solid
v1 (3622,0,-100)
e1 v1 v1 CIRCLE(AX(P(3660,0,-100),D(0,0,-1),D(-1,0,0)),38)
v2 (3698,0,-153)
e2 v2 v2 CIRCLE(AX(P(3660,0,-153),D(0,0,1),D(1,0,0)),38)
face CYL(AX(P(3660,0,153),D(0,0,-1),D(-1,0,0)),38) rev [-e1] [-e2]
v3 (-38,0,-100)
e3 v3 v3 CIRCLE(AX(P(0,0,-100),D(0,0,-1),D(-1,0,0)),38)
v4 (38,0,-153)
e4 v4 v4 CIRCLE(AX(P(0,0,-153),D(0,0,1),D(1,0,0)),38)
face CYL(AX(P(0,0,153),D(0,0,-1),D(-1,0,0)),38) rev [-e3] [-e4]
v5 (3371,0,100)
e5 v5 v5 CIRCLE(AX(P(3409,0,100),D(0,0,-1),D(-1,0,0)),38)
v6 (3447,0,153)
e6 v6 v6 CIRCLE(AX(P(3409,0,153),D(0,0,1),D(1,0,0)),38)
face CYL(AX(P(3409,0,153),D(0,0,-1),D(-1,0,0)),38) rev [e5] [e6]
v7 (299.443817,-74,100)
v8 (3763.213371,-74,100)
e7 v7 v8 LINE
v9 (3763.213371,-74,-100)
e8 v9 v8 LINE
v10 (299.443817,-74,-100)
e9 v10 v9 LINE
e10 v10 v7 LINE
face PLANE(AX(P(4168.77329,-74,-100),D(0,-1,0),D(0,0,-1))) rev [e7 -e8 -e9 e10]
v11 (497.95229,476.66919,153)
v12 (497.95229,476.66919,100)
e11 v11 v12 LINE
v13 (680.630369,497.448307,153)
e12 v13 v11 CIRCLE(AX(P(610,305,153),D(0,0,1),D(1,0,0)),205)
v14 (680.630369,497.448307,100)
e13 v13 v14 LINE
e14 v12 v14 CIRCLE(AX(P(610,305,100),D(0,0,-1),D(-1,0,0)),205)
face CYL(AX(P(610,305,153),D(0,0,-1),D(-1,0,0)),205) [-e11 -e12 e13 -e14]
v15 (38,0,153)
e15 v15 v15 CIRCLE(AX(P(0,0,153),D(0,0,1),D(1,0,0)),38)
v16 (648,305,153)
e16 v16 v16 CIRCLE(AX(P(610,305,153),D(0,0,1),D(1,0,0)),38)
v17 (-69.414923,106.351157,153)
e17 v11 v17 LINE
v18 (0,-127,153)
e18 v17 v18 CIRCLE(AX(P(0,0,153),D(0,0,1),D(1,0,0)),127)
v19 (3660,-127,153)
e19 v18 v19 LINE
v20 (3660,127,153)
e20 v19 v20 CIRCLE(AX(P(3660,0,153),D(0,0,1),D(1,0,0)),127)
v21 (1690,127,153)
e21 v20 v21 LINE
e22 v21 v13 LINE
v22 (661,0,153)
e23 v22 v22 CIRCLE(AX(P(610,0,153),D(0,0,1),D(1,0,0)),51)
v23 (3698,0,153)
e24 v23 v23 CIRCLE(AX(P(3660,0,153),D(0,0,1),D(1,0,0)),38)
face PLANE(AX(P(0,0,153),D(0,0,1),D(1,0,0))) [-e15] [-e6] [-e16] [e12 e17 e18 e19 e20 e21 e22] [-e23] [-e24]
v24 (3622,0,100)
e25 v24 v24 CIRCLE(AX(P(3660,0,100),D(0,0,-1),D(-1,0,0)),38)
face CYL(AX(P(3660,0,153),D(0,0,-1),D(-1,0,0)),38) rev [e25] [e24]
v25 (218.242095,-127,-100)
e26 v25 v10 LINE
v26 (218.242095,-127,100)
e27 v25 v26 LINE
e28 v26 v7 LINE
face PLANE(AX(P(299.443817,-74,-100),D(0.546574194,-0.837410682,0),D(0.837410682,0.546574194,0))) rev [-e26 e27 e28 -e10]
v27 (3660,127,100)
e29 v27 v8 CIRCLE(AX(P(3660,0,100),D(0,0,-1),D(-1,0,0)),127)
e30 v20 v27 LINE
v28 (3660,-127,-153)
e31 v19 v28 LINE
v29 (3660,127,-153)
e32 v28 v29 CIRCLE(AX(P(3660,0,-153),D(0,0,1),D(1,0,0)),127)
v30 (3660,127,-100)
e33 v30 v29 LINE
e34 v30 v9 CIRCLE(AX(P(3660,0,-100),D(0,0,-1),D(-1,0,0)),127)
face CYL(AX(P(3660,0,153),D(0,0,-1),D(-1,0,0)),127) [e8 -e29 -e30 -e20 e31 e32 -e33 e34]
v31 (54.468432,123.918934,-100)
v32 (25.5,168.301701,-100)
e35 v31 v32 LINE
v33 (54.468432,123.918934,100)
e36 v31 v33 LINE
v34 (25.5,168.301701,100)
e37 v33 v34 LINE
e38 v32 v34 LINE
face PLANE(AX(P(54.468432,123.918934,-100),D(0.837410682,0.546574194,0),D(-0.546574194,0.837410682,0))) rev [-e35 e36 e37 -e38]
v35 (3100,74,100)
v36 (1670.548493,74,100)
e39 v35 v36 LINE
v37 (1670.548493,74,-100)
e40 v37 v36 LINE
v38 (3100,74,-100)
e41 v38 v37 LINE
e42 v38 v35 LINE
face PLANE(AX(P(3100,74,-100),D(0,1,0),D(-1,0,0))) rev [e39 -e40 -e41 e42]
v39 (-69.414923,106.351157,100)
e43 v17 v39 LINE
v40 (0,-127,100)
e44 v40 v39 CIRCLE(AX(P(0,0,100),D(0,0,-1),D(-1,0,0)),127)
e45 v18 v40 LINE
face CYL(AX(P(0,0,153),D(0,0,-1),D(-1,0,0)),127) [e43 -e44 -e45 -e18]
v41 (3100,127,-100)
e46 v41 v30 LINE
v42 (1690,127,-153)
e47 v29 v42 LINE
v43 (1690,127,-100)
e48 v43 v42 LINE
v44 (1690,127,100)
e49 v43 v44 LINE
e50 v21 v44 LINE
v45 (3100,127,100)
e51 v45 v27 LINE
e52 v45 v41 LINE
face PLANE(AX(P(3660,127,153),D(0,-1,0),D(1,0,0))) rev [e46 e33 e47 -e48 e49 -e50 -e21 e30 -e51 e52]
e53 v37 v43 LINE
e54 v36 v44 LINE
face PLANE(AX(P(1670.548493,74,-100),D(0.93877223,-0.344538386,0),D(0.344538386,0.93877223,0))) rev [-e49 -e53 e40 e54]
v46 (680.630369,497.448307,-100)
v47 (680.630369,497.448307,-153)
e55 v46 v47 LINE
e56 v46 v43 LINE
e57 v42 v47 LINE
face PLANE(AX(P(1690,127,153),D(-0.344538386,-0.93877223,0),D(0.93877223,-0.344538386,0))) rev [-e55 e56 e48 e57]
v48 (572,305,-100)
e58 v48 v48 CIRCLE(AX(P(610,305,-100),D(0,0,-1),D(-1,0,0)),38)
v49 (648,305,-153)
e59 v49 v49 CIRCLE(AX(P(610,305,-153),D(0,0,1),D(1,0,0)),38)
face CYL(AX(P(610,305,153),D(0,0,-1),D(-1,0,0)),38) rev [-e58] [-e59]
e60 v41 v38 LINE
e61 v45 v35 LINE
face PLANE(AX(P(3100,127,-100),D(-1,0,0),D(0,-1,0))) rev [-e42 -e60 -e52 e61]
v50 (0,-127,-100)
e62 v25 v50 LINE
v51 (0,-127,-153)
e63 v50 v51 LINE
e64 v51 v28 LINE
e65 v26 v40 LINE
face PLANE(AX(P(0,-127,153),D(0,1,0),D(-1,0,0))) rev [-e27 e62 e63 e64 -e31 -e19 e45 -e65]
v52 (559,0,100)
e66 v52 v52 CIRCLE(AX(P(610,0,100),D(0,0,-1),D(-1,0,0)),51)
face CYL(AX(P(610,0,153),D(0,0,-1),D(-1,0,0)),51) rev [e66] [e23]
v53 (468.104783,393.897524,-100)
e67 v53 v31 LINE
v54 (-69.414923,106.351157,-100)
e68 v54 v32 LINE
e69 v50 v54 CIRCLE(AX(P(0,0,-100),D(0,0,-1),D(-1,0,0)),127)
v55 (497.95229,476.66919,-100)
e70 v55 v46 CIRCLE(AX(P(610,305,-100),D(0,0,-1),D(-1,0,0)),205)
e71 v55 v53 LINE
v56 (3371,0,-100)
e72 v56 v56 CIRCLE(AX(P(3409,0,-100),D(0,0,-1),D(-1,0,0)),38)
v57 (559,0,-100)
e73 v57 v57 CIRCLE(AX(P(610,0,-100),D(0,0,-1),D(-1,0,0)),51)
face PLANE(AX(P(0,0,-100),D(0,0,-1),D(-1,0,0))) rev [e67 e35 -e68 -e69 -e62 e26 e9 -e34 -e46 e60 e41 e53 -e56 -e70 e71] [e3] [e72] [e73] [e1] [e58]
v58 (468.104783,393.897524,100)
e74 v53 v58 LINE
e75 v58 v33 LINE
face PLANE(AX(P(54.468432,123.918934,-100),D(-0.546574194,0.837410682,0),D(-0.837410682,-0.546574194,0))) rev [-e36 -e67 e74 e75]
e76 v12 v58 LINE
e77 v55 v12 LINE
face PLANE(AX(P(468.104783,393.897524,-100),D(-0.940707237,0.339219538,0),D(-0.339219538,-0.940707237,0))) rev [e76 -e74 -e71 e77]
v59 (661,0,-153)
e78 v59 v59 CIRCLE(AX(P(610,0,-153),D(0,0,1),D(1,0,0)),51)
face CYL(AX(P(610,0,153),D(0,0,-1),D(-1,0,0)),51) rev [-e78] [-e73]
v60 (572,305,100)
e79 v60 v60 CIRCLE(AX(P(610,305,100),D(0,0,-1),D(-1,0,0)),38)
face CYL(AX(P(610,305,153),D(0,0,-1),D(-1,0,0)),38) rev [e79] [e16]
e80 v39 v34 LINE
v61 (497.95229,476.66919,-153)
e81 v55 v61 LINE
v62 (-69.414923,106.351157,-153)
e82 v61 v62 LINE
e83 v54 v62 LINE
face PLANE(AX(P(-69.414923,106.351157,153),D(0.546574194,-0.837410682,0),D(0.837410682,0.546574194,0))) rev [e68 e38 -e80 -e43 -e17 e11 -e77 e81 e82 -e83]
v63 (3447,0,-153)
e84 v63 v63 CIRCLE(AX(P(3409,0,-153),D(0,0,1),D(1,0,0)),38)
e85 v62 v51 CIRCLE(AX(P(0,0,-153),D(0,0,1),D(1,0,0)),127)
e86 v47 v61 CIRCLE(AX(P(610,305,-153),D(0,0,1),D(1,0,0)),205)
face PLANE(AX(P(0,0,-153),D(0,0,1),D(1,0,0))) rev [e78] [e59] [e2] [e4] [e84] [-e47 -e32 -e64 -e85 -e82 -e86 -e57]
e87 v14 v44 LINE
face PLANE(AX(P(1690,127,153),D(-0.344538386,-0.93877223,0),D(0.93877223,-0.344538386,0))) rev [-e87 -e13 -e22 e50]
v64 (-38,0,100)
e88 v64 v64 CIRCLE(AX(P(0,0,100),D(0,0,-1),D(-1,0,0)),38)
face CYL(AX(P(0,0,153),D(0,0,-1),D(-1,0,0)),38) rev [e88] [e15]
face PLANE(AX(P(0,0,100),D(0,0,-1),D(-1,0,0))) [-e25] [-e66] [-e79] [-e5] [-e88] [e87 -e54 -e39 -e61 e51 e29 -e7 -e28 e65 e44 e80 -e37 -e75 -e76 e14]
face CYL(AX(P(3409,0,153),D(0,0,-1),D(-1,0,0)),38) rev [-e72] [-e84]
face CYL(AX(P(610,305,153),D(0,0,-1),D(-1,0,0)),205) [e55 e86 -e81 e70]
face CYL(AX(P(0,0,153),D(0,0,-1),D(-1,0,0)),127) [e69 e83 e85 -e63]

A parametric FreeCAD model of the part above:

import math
import FreeCAD as App
import Part
import Sketcher

V = App.Vector

doc = App.newDocument("Part")
body = doc.addObject("PartDesign::Body", "Body")

# Sketch on XY plane
sketch1 = body.newObject("Sketcher::SketchObject", "Sketch")
sketch1.AttachmentSupport = (doc.getObject("XY_Plane"), [""])
sketch1.MapMode = "FlatFace"
sketch1.addGeometry([
    Part.LineSegment(V(498, 477, 0), V(-69, 106, 0)),  # 0
    Part.ArcOfCircle(Part.Circle(V(0, 0, 0), V(0, 0, 1), 127), math.radians(123), math.radians(270)),  # 1
    Part.LineSegment(V(0, -127, 0), V(3660, -127, 0)),  # 2
    Part.ArcOfCircle(Part.Circle(V(3660, 0, 0), V(0, 0, 1), 127), math.radians(-90), math.radians(90)),  # 3
    Part.LineSegment(V(3660, 127, 0), V(1690, 127, 0)),  # 4
    Part.LineSegment(V(1690, 127, 0), V(681, 497, 0)),  # 5
    Part.ArcOfCircle(Part.Circle(V(610, 305, 0), V(0, 0, 1), 205), math.radians(70), math.radians(123)),  # 6
    Part.Circle(V(3660, 0, 0), V(0, 0, 1), 38),  # 7
    Part.Circle(V(3409, 0, 0), V(0, 0, 1), 38),  # 8
    Part.Circle(V(610, 0, 0), V(0, 0, 1), 51),  # 9
    Part.Circle(V(0, 0, 0), V(0, 0, 1), 38),  # 10
    Part.Circle(V(610, 305, 0), V(0, 0, 1), 38),  # 11
], False)
sketch1.addConstraint([
    Sketcher.Constraint("Tangent", 0, 2, 1, 1),
    Sketcher.Constraint("Tangent", 1, 2, 2, 1),
    Sketcher.Constraint("Tangent", 2, 2, 3, 1),
    Sketcher.Constraint("Tangent", 3, 2, 4, 1),
    Sketcher.Constraint("Coincident", 4, 2, 5, 1),
    Sketcher.Constraint("Tangent", 5, 2, 6, 1),
    Sketcher.Constraint("Tangent", 6, 2, 0, 1),
    Sketcher.Constraint("Horizontal", 2),
    Sketcher.Constraint("Horizontal", 4),
    Sketcher.Constraint("Coincident", 1, 3, -1, 1),
    Sketcher.Constraint("Coincident", 10, 3, -1, 1),
    Sketcher.Constraint("Coincident", 7, 3, 3, 3),
    Sketcher.Constraint("Coincident", 11, 3, 6, 3),
    Sketcher.Constraint("Equal", 1, 3),
    Sketcher.Constraint("Equal", 7, 8),
    Sketcher.Constraint("Equal", 8, 10),
    Sketcher.Constraint("Equal", 10, 11),
    Sketcher.Constraint("PointOnObject", 8, 3, -1),
    Sketcher.Constraint("PointOnObject", 9, 3, -1),
    Sketcher.Constraint("Vertical", 6, 3, 9, 3),
    Sketcher.Constraint("Diameter", 7, 76.0),
    Sketcher.Constraint("Diameter", 9, 102.0),
    Sketcher.Constraint("Radius", 1, 127.0),
    Sketcher.Constraint("Radius", 6, 205.0),
    Sketcher.Constraint("DistanceX", 2, 1, 2, 2, 3660.0),
    Sketcher.Constraint("DistanceX", 4, 2, 4, 1, 1970.0),
    Sketcher.Constraint("DistanceX", -1, 1, 6, 3, 610.0),
    Sketcher.Constraint("DistanceY", -1, 1, 6, 3, 305.0),
    Sketcher.Constraint("DistanceX", -1, 1, 8, 3, 3409.0),
])
pad1 = body.newObject("PartDesign::Pad", "Pad")
pad1.Profile = sketch1
pad1.Length = 306
pad1.Midplane = True

# Sketch on XY plane
sketch2 = body.newObject("Sketcher::SketchObject", "Sketch001")
sketch2.AttachmentSupport = (doc.getObject("XY_Plane"), [""])
sketch2.MapMode = "FlatFace"
sketch2.addGeometry([
    Part.LineSegment(V(54, 124, 0), V(26, 168, 0)),  # 0
    Part.LineSegment(V(26, 168, 0), V(26, 442, 0)),  # 1
    Part.LineSegment(V(26, 442, 0), V(-336, 442, 0)),  # 2
    Part.LineSegment(V(-336, 442, 0), V(-336, -283, 0)),  # 3
    Part.LineSegment(V(-336, -283, 0), V(218, -283, 0)),  # 4
    Part.LineSegment(V(218, -283, 0), V(218, -127, 0)),  # 5
    Part.LineSegment(V(218, -127, 0), V(299, -74, 0)),  # 6
    Part.LineSegment(V(299, -74, 0), V(4169, -74, 0)),  # 7
    Part.LineSegment(V(4169, -74, 0), V(4169, 728, 0)),  # 8
    Part.LineSegment(V(4169, 728, 0), V(3100, 728, 0)),  # 9
    Part.LineSegment(V(3100, 728, 0), V(3100, 74, 0)),  # 10
    Part.LineSegment(V(3100, 74, 0), V(1671, 74, 0)),  # 11
    Part.LineSegment(V(1671, 74, 0), V(1690, 127, 0)),  # 12
    Part.LineSegment(V(1690, 127, 0), V(1690, 728, 0)),  # 13
    Part.LineSegment(V(1690, 728, 0), V(498, 728, 0)),  # 14
    Part.LineSegment(V(498, 728, 0), V(498, 477, 0)),  # 15
    Part.LineSegment(V(498, 477, 0), V(468, 394, 0)),  # 16
    Part.LineSegment(V(468, 394, 0), V(54, 124, 0)),  # 17
], False)
sketch2.addConstraint([
    Sketcher.Constraint("Coincident", 0, 2, 1, 1),
    Sketcher.Constraint("Coincident", 1, 2, 2, 1),
    Sketcher.Constraint("Coincident", 2, 2, 3, 1),
    Sketcher.Constraint("Coincident", 3, 2, 4, 1),
    Sketcher.Constraint("Coincident", 4, 2, 5, 1),
    Sketcher.Constraint("Coincident", 5, 2, 6, 1),
    Sketcher.Constraint("Coincident", 6, 2, 7, 1),
    Sketcher.Constraint("Coincident", 7, 2, 8, 1),
    Sketcher.Constraint("Coincident", 8, 2, 9, 1),
    Sketcher.Constraint("Coincident", 9, 2, 10, 1),
    Sketcher.Constraint("Coincident", 10, 2, 11, 1),
    Sketcher.Constraint("Coincident", 11, 2, 12, 1),
    Sketcher.Constraint("Coincident", 12, 2, 13, 1),
    Sketcher.Constraint("Coincident", 13, 2, 14, 1),
    Sketcher.Constraint("Coincident", 14, 2, 15, 1),
    Sketcher.Constraint("Coincident", 15, 2, 16, 1),
    Sketcher.Constraint("Coincident", 16, 2, 17, 1),
    Sketcher.Constraint("Coincident", 17, 2, 0, 1),
    Sketcher.Constraint("Vertical", 1),
    Sketcher.Constraint("Horizontal", 2),
    Sketcher.Constraint("Vertical", 3),
    Sketcher.Constraint("Horizontal", 4),
    Sketcher.Constraint("Vertical", 5),
    Sketcher.Constraint("Horizontal", 7),
    Sketcher.Constraint("Vertical", 8),
    Sketcher.Constraint("Horizontal", 9),
    Sketcher.Constraint("Vertical", 10),
    Sketcher.Constraint("Horizontal", 11),
    Sketcher.Constraint("Vertical", 13),
    Sketcher.Constraint("Horizontal", 14),
    Sketcher.Constraint("Vertical", 15),
    Sketcher.Constraint("Perpendicular", 0, 6),
    Sketcher.Constraint("Parallel", 6, 17),
    Sketcher.Constraint("Horizontal", 9, 2, 13, 2),
    Sketcher.Constraint("Distance", 0, 53.0),
    Sketcher.Constraint("DistanceY", 5, 2, -1, 1, 127.0),
    Sketcher.Constraint("DistanceY", 6, 2, -1, 1, 74.0),
    Sketcher.Constraint("DistanceX", -1, 1, 9, 2, 3100.0),
    Sketcher.Constraint("DistanceY", -1, 1, 10, 2, 74.0),
    Sketcher.Constraint("DistanceX", -1, 1, 12, 2, 1690.0),
    Sketcher.Constraint("DistanceY", -1, 1, 12, 2, 127.0),
    Sketcher.Constraint("DistanceX", -1, 1, 0, 2, 25.5),
    Sketcher.Constraint("DistanceX", 2, 2, 2, 1, 361.078739),
    Sketcher.Constraint("DistanceX", 9, 2, 9, 1, 1068.77329),
    Sketcher.Constraint("DistanceX", 14, 2, 14, 1, 1192.04771),
    Sketcher.Constraint("DistanceY", -1, 1, 0, 2, 168.301701),
    Sketcher.Constraint("DistanceX", 5, 2, 11, 2, 1452.306399),
    Sketcher.Constraint("DistanceY", 16, 2, 1, 2, 47.806702),
    Sketcher.Constraint("Distance", 12, 56.456719),
    Sketcher.Constraint("Distance", 17, 493.946828),
    Sketcher.Constraint("DistanceX", 7, 1, 7, 2, 3869.329473),
    Sketcher.Constraint("DistanceY", 3, 2, 3, 1, 724.437802),
    Sketcher.Constraint("DistanceY", 8, 1, 8, 2, 802.333746),
    Sketcher.Constraint("DistanceY", 15, 2, 15, 1, 251.664556),
])
pocket1 = body.newObject("PartDesign::Pocket", "Pocket")
pocket1.Profile = sketch2
pocket1.Length = 200
pocket1.Midplane = True

doc.recompute()
